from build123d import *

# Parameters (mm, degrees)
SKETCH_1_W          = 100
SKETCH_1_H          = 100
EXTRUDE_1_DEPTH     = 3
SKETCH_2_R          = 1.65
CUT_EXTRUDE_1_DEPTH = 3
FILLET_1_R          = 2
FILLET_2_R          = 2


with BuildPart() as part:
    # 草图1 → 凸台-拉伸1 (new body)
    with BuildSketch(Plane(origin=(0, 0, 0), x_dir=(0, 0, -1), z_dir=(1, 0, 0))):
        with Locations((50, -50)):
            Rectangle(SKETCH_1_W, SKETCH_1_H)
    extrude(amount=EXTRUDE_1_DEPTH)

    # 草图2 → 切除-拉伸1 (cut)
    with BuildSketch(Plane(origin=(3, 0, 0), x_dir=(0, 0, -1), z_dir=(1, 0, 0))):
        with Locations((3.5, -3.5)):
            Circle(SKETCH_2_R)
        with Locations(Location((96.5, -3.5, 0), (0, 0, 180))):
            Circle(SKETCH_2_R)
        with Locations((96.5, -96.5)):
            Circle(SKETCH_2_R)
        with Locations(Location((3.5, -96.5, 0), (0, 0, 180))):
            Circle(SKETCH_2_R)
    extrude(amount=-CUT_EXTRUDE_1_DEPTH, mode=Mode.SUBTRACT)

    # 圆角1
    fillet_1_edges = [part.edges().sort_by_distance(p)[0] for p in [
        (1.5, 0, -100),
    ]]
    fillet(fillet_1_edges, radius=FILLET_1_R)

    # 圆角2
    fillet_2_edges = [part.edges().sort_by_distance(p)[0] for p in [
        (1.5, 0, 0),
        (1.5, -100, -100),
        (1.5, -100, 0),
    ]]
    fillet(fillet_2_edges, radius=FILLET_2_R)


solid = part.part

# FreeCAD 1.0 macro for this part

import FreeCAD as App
import Part
import Sketcher
from FreeCAD import Vector
Q = App.Units.Quantity


def edges_at(feature, points):
    """Names of the edges that pass closest to the given points."""
    edges = feature.Shape.Edges
    near = lambda p: min(range(len(edges)), key=lambda i: edges[i].distToShape(Part.Vertex(*p))[0])
    return sorted({f"Edge{near(p) + 1}" for p in points})

doc = App.newDocument("Part")
params = doc.addObject("Spreadsheet::Sheet", "Params")
for row, (alias, value) in enumerate([
    ("sketch1_width", "100 mm"),
    ("pad1_length", "3 mm"),
    ("sketch2_diameter", "3.3 mm"),
    ("pocket1_length", "3 mm"),
    ("fillet_radius", "2 mm"),
    ("fillet2_radius", "2 mm"),
], start=1):
    params.set(f"A{row}", alias)
    params.set(f"B{row}", "=" + value)
    params.setAlias(f"B{row}", alias)

body = doc.addObject("PartDesign::Body", "Body")

sketch1 = doc.addObject("Sketcher::SketchObject", "Sketch")
body.addObject(sketch1)
sketch1.AttachmentSupport = (doc.YZ_Plane, [""])
sketch1.MapMode = "FlatFace"
sketch1.addGeometry(Part.LineSegment(Vector(0, 0, 0), Vector(-100, 0, 0)), False)
sketch1.addGeometry(Part.LineSegment(Vector(-100, 0, 0), Vector(-100, -100, 0)), False)
sketch1.addGeometry(Part.LineSegment(Vector(-100, -100, 0), Vector(0, -100, 0)), False)
sketch1.addGeometry(Part.LineSegment(Vector(0, -100, 0), Vector(0, 0, 0)), False)
sketch1.addConstraint(Sketcher.Constraint("Coincident", 0, 2, 1, 1))
sketch1.addConstraint(Sketcher.Constraint("Coincident", 1, 2, 2, 1))
sketch1.addConstraint(Sketcher.Constraint("Coincident", 2, 2, 3, 1))
sketch1.addConstraint(Sketcher.Constraint("Coincident", 3, 2, 0, 1))
sketch1.addConstraint(Sketcher.Constraint("Horizontal", 0))
sketch1.addConstraint(Sketcher.Constraint("Vertical", 1))
sketch1.addConstraint(Sketcher.Constraint("Horizontal", 2))
sketch1.addConstraint(Sketcher.Constraint("Vertical", 3))
sketch1.addConstraint(Sketcher.Constraint("Coincident", 3, 2, -1, 1))
sketch1.addConstraint(Sketcher.Constraint("Equal", 2, 1))
sketch1.addConstraint(Sketcher.Constraint("DistanceX", 0, 2, 0, 1, Q("100 mm")))
sketch1.setExpression("Constraints[10]", "Params.sketch1_width")
pad1 = doc.addObject("PartDesign::Pad", "Pad")
body.addObject(pad1)
pad1.Profile = sketch1
pad1.setExpression("Length", "Params.pad1_length")

sketch2 = doc.addObject("Sketcher::SketchObject", "Sketch001")
body.addObject(sketch2)
sketch2.AttachmentSupport = (doc.YZ_Plane, [""])
sketch2.MapMode = "FlatFace"
sketch2.AttachmentOffset = App.Placement(Vector(0, 0, 3), App.Rotation())
sketch2.addGeometry(Part.Circle(Vector(-3.5, -3.5, 0), Vector(0, 0, 1), 1.6), False)
sketch2.addGeometry(Part.Circle(Vector(-3.5, -96.5, 0), Vector(0, 0, 1), 1.6), False)
sketch2.addGeometry(Part.Circle(Vector(-96.5, -96.5, 0), Vector(0, 0, 1), 1.6), False)
sketch2.addGeometry(Part.Circle(Vector(-96.5, -3.5, 0), Vector(0, 0, 1), 1.6), False)
sketch2.addConstraint(Sketcher.Constraint("Equal", 0, 1))
sketch2.addConstraint(Sketcher.Constraint("Equal", 1, 2))
sketch2.addConstraint(Sketcher.Constraint("Equal", 2, 3))
sketch2.addConstraint(Sketcher.Constraint("Horizontal", 1, 3, 2, 3))
sketch2.addConstraint(Sketcher.Constraint("Horizontal", 0, 3, 3, 3))
sketch2.addConstraint(Sketcher.Constraint("Vertical", 0, 3, 1, 3))
sketch2.addConstraint(Sketcher.Constraint("Vertical", 2, 3, 3, 3))
sketch2.addConstraint(Sketcher.Constraint("Diameter", 0, Q("3.3 mm")))
sketch2.addConstraint(Sketcher.Constraint("DistanceY", 1, 3, 0, 3, Q("93 mm")))
sketch2.addConstraint(Sketcher.Constraint("DistanceX", 2, 3, 1, 3, Q("93 mm")))
sketch2.addConstraint(Sketcher.Constraint("DistanceX", 0, 3, -1, 1, Q("3.5 mm")))
sketch2.addConstraint(Sketcher.Constraint("DistanceY", 0, 3, -1, 1, Q("3.5 mm")))
sketch2.setExpression("Constraints[7]", "Params.sketch2_diameter")
pocket1 = doc.addObject("PartDesign::Pocket", "Pocket")
body.addObject(pocket1)
pocket1.Profile = sketch2
pocket1.setExpression("Length", "Params.pocket1_length")
doc.recompute()

fillet = doc.addObject("PartDesign::Fillet", "Fillet")
body.addObject(fillet)
fillet.Base = (pocket1, edges_at(pocket1, [(1.5, 0, -100)]))
fillet.setExpression("Radius", "Params.fillet_radius")
doc.recompute()

fillet2 = doc.addObject("PartDesign::Fillet", "Fillet001")
body.addObject(fillet2)
fillet2.Base = (fillet, edges_at(fillet, [(1.5, 0, 0), (1.5, -100, -100), (1.5, -100, 0)]))
fillet2.setExpression("Radius", "Params.fillet2_radius")

doc.recompute()
